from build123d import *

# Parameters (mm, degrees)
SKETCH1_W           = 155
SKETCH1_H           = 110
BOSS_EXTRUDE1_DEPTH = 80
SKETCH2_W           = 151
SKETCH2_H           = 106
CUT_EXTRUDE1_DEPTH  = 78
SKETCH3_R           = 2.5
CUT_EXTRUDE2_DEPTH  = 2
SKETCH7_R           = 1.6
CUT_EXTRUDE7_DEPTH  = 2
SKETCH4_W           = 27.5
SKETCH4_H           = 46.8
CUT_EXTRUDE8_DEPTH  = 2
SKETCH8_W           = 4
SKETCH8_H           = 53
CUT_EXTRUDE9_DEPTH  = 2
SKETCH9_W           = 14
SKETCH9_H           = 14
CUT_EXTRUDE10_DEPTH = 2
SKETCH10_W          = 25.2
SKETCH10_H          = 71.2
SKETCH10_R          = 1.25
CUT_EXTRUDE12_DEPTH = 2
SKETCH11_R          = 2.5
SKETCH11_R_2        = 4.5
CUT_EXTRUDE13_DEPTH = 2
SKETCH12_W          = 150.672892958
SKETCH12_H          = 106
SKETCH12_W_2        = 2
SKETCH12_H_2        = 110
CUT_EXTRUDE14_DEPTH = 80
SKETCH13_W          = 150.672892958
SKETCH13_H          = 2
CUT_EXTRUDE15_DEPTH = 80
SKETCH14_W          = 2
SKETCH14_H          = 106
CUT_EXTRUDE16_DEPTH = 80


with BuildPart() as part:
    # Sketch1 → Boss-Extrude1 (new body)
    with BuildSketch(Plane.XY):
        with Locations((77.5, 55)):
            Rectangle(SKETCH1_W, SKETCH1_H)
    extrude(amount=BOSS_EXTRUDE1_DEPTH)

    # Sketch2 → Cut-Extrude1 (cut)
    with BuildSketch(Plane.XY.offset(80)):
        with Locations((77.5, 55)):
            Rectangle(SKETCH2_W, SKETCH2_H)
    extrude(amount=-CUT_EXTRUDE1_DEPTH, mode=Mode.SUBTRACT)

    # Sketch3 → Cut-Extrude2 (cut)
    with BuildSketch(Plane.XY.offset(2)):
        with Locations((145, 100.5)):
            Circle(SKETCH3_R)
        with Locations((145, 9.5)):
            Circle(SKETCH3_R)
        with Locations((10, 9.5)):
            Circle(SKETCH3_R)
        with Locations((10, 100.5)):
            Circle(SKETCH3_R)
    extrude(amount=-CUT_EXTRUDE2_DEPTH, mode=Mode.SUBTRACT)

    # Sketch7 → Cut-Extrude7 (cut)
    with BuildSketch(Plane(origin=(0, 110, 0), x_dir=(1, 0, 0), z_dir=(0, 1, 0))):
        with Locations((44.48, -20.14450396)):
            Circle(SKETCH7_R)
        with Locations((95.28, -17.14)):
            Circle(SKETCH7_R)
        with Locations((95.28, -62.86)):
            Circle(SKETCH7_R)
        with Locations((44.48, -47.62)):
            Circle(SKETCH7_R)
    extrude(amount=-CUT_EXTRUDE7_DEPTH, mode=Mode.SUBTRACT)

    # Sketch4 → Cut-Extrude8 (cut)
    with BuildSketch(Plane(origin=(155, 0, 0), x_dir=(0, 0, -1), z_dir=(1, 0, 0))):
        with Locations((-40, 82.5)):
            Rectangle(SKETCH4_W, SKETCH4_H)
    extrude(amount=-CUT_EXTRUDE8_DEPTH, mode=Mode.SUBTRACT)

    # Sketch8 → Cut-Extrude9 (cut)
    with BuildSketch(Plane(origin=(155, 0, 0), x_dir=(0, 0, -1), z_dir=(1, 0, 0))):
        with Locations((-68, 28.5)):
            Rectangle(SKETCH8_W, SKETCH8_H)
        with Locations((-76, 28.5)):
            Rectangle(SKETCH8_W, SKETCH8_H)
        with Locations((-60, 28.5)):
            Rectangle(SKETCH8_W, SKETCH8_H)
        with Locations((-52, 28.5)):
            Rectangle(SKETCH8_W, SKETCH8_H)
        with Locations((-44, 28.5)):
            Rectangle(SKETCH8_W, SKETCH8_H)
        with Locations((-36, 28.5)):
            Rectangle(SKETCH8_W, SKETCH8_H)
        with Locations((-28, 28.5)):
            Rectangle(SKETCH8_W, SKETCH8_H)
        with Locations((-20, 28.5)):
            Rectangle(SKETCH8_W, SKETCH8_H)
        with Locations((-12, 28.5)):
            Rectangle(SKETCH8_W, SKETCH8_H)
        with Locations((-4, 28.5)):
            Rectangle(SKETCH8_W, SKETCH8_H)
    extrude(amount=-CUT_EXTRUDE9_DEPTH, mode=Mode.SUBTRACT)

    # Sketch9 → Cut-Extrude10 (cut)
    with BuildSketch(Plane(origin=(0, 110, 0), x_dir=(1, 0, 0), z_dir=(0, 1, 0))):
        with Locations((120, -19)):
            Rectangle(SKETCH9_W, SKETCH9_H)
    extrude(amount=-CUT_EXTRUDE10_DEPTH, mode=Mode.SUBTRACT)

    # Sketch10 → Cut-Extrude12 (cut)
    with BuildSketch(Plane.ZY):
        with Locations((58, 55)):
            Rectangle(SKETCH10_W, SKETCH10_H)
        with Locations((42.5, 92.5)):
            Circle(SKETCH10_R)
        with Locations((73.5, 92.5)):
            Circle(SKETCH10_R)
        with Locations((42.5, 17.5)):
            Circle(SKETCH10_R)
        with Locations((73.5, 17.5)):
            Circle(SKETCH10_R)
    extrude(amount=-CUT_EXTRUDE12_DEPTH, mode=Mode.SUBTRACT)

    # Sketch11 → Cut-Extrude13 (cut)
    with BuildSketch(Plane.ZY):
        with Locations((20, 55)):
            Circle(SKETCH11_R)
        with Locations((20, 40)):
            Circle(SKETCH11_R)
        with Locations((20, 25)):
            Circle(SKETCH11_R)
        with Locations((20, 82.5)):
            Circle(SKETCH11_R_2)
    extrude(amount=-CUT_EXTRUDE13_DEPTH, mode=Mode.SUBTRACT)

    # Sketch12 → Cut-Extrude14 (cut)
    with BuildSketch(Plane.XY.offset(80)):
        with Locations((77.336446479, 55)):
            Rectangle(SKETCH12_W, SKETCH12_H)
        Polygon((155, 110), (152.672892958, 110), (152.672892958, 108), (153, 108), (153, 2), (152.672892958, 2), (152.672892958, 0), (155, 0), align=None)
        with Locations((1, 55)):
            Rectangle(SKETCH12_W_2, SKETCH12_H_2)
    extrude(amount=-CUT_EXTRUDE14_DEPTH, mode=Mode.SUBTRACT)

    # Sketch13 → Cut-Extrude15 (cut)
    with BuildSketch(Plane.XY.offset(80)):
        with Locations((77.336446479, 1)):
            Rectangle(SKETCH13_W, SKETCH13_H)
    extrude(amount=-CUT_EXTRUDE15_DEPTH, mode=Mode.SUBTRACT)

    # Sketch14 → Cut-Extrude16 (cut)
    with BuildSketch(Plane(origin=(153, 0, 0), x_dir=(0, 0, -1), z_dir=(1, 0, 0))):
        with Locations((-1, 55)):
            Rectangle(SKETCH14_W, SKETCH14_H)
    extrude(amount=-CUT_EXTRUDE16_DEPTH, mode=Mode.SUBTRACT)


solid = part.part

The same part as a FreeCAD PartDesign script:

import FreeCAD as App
import Part
import Sketcher
from FreeCAD import Vector


def add_polygon(sketch, points):
    """Adds a closed chain of lines whose ends are joined by coincident constraints."""
    first, n = sketch.GeometryCount, len(points)
    for a, b in zip(points, points[1:] + points[:1]):
        sketch.addGeometry(Part.LineSegment(App.Vector(*a, 0), App.Vector(*b, 0)), False)
    for i in range(n):
        sketch.addConstraint(Sketcher.Constraint("Coincident", first + i, 2, first + (i + 1) % n, 1))

doc = App.newDocument("Part")
body = doc.addObject("PartDesign::Body", "Body")
body.AllowCompound = True

# Sketch on XY plane
sketch1 = body.newObject("Sketcher::SketchObject", "Sketch")
sketch1.AttachmentSupport = (doc.getObject("XY_Plane"), [""])
sketch1.MapMode = "FlatFace"
add_polygon(sketch1, [(0, 110), (0, 0), (155, 0), (155, 110)])  # lines 0-3
sketch1.addConstraint([
    Sketcher.Constraint("Vertical", 0),
    Sketcher.Constraint("Horizontal", 1),
    Sketcher.Constraint("Vertical", 2),
    Sketcher.Constraint("Horizontal", 3),
    Sketcher.Constraint("Coincident", 0, 2, -1, 1),
    Sketcher.Constraint("DistanceX", 1, 1, 1, 2, 155.0),
    Sketcher.Constraint("DistanceY", 0, 2, 0, 1, 110.0),
])
pad1 = body.newObject("PartDesign::Pad", "Pad")
pad1.Profile = sketch1
pad1.Length = 80

# Sketch on XY plane
sketch2 = body.newObject("Sketcher::SketchObject", "Sketch001")
sketch2.AttachmentSupport = (doc.getObject("XY_Plane"), [""])
sketch2.MapMode = "FlatFace"
sketch2.AttachmentOffset = App.Placement(Vector(0, 0, 80), App.Rotation())
add_polygon(sketch2, [(2, 108), (2, 2), (153, 2), (153, 108)])  # lines 0-3
sketch2.addConstraint([
    Sketcher.Constraint("Vertical", 0),
    Sketcher.Constraint("Horizontal", 1),
    Sketcher.Constraint("Vertical", 2),
    Sketcher.Constraint("Horizontal", 3),
    Sketcher.Constraint("DistanceX", 1, 1, 1, 2, 151.0),
    Sketcher.Constraint("DistanceY", 0, 2, 0, 1, 106.0),
    Sketcher.Constraint("DistanceX", -1, 1, 0, 2, 2.0),
    Sketcher.Constraint("DistanceY", -1, 1, 0, 2, 2.0),
])
pocket1 = body.newObject("PartDesign::Pocket", "Pocket")
pocket1.Profile = sketch2
pocket1.Length = 78

# Sketch on XY plane
sketch3 = body.newObject("Sketcher::SketchObject", "Sketch002")
sketch3.AttachmentSupport = (doc.getObject("XY_Plane"), [""])
sketch3.MapMode = "FlatFace"
sketch3.AttachmentOffset = App.Placement(Vector(0, 0, 2), App.Rotation())
sketch3.addGeometry([
    Part.Circle(Vector(145, 100.5, 0), Vector(0, 0, 1), 2.5),
    Part.Circle(Vector(145, 9.5, 0), Vector(0, 0, 1), 2.5),
    Part.Circle(Vector(10, 9.5, 0), Vector(0, 0, 1), 2.5),
    Part.Circle(Vector(10, 100.5, 0), Vector(0, 0, 1), 2.5),
], False)
sketch3.addConstraint([
    Sketcher.Constraint("Equal", 0, 1),
    Sketcher.Constraint("Equal", 1, 2),
    Sketcher.Constraint("Equal", 2, 3),
    Sketcher.Constraint("Horizontal", 1, 3, 2, 3),
    Sketcher.Constraint("Horizontal", 0, 3, 3, 3),
    Sketcher.Constraint("Vertical", 0, 3, 1, 3),
    Sketcher.Constraint("Vertical", 2, 3, 3, 3),
    Sketcher.Constraint("Diameter", 0, 5.0),
    Sketcher.Constraint("DistanceX", -1, 1, 0, 3, 145.0),
    Sketcher.Constraint("DistanceX", -1, 1, 2, 3, 10.0),
    Sketcher.Constraint("DistanceY", 1, 3, 0, 3, 91.0),
    Sketcher.Constraint("DistanceY", -1, 1, 0, 3, 100.5),
])
pocket2 = body.newObject("PartDesign::Pocket", "Pocket001")
pocket2.Profile = sketch3
pocket2.Length = 2

# Sketch on XZ plane
sketch4 = body.newObject("Sketcher::SketchObject", "Sketch003")
sketch4.AttachmentSupport = (doc.getObject("XZ_Plane"), [""])
sketch4.MapMode = "FlatFace"
sketch4.AttachmentOffset = App.Placement(Vector(0, 0, -110), App.Rotation())
sketch4.addGeometry([
    Part.Circle(Vector(44.48, 20.144504, 0), Vector(0, 0, 1), 1.6),
    Part.Circle(Vector(95.28, 17.14, 0), Vector(0, 0, 1), 1.6),
    Part.Circle(Vector(95.28, 62.86, 0), Vector(0, 0, 1), 1.6),
    Part.Circle(Vector(44.48, 47.62, 0), Vector(0, 0, 1), 1.6),
], False)
sketch4.addConstraint([
    Sketcher.Constraint("Equal", 0, 1),
    Sketcher.Constraint("Equal", 1, 2),
    Sketcher.Constraint("Equal", 2, 3),
    Sketcher.Constraint("Vertical", 1, 3, 2, 3),
    Sketcher.Constraint("Vertical", 0, 3, 3, 3),
    Sketcher.Constraint("Diameter", 0, 3.2),
    Sketcher.Constraint("DistanceX", 0, 3, 1, 3, 50.8),
    Sketcher.Constraint("DistanceX", -1, 1, 0, 3, 44.48),
    Sketcher.Constraint("DistanceY", -1, 1, 1, 3, 17.14),
    Sketcher.Constraint("DistanceY", -1, 1, 2, 3, 62.86),
    Sketcher.Constraint("DistanceY", -1, 1, 3, 3, 47.62),
    Sketcher.Constraint("DistanceY", -1, 1, 0, 3, 20.144504),
])
pocket3 = body.newObject("PartDesign::Pocket", "Pocket002")
pocket3.Profile = sketch4
pocket3.Length = 2
pocket3.Reversed = True

# Sketch on YZ plane
sketch5 = body.newObject("Sketcher::SketchObject", "Sketch004")
sketch5.AttachmentSupport = (doc.getObject("YZ_Plane"), [""])
sketch5.MapMode = "FlatFace"
sketch5.AttachmentOffset = App.Placement(Vector(0, 0, 155), App.Rotation())
add_polygon(sketch5, [(105.9, 53.75), (59.1, 53.75), (59.1, 26.25), (105.9, 26.25)])  # lines 0-3
sketch5.addConstraint([
    Sketcher.Constraint("Horizontal", 0),
    Sketcher.Constraint("Vertical", 1),
    Sketcher.Constraint("Horizontal", 2),
    Sketcher.Constraint("Vertical", 3),
    Sketcher.Constraint("DistanceX", 0, 2, 0, 1, 46.8),
    Sketcher.Constraint("DistanceY", 1, 2, 1, 1, 27.5),
    Sketcher.Constraint("DistanceX", -1, 1, 0, 2, 59.1),
    Sketcher.Constraint("DistanceY", -1, 1, 0, 2, 53.75),
])
pocket4 = body.newObject("PartDesign::Pocket", "Pocket003")
pocket4.Profile = sketch5
pocket4.Length = 2

# Sketch on YZ plane
sketch6 = body.newObject("Sketcher::SketchObject", "Sketch005")
sketch6.AttachmentSupport = (doc.getObject("YZ_Plane"), [""])
sketch6.MapMode = "FlatFace"
sketch6.AttachmentOffset = App.Placement(Vector(0, 0, 155), App.Rotation())
add_polygon(sketch6, [(55, 70), (2, 70), (2, 66), (55, 66)])  # lines 0-3
add_polygon(sketch6, [(55, 78), (2, 78), (2, 74), (55, 74)])  # lines 4-7
add_polygon(sketch6, [(55, 62), (2, 62), (2, 58), (55, 58)])  # lines 8-11
add_polygon(sketch6, [(55, 54), (2, 54), (2, 50), (55, 50)])  # lines 12-15
add_polygon(sketch6, [(55, 46), (2, 46), (2, 42), (55, 42)])  # lines 16-19
add_polygon(sketch6, [(55, 38), (2, 38), (2, 34), (55, 34)])  # lines 20-23
add_polygon(sketch6, [(55, 30), (2, 30), (2, 26), (55, 26)])  # lines 24-27
add_polygon(sketch6, [(55, 22), (2, 22), (2, 18), (55, 18)])  # lines 28-31
add_polygon(sketch6, [(55, 14), (2, 14), (2, 10), (55, 10)])  # lines 32-35
add_polygon(sketch6, [(55, 6), (2, 6), (2, 2), (55, 2)])  # lines 36-39
sketch6.addConstraint([
    Sketcher.Constraint("Horizontal", 0),
    Sketcher.Constraint("Vertical", 1),
    Sketcher.Constraint("Horizontal", 2),
    Sketcher.Constraint("Vertical", 3),
    Sketcher.Constraint("Horizontal", 4),
    Sketcher.Constraint("Vertical", 5),
    Sketcher.Constraint("Horizontal", 6),
    Sketcher.Constraint("Vertical", 7),
    Sketcher.Constraint("Horizontal", 8),
    Sketcher.Constraint("Vertical", 9),
    Sketcher.Constraint("Horizontal", 10),
    Sketcher.Constraint("Vertical", 11),
    Sketcher.Constraint("Horizontal", 12),
    Sketcher.Constraint("Vertical", 13),
    Sketcher.Constraint("Horizontal", 14),
    Sketcher.Constraint("Vertical", 15),
    Sketcher.Constraint("Horizontal", 16),
    Sketcher.Constraint("Vertical", 17),
    Sketcher.Constraint("Horizontal", 18),
    Sketcher.Constraint("Vertical", 19),
    Sketcher.Constraint("Horizontal", 20),
    Sketcher.Constraint("Vertical", 21),
    Sketcher.Constraint("Horizontal", 22),
    Sketcher.Constraint("Vertical", 23),
    Sketcher.Constraint("Horizontal", 24),
    Sketcher.Constraint("Vertical", 25),
    Sketcher.Constraint("Horizontal", 26),
    Sketcher.Constraint("Vertical", 27),
    Sketcher.Constraint("Horizontal", 28),
    Sketcher.Constraint("Vertical", 29),
    Sketcher.Constraint("Horizontal", 30),
    Sketcher.Constraint("Vertical", 31),
    Sketcher.Constraint("Horizontal", 32),
    Sketcher.Constraint("Vertical", 33),
    Sketcher.Constraint("Horizontal", 34),
    Sketcher.Constraint("Vertical", 35),
    Sketcher.Constraint("Horizontal", 36),
    Sketcher.Constraint("Vertical", 37),
    Sketcher.Constraint("Horizontal", 38),
    Sketcher.Constraint("Vertical", 39),
    Sketcher.Constraint("Vertical", 1, 2, 4, 2),
    Sketcher.Constraint("Vertical", 3, 2, 6, 2),
    Sketcher.Constraint("Vertical", 5, 2, 8, 2),
    Sketcher.Constraint("Vertical", 7, 2, 10, 2),
    Sketcher.Constraint("Vertical", 9, 2, 12, 2),
    Sketcher.Constraint("Vertical", 11, 2, 14, 2),
    Sketcher.Constraint("Vertical", 13, 2, 16, 2),
    Sketcher.Constraint("Vertical", 15, 2, 18, 2),
    Sketcher.Constraint("Vertical", 17, 2, 20, 2),
    Sketcher.Constraint("Vertical", 19, 2, 22, 2),
    Sketcher.Constraint("Vertical", 21, 2, 24, 2),
    Sketcher.Constraint("Vertical", 23, 2, 26, 2),
    Sketcher.Constraint("Vertical", 25, 2, 28, 2),
    Sketcher.Constraint("Vertical", 27, 2, 30, 2),
    Sketcher.Constraint("Vertical", 29, 2, 32, 2),
    Sketcher.Constraint("Vertical", 31, 2, 34, 2),
    Sketcher.Constraint("Vertical", 33, 2, 36, 2),
    Sketcher.Constraint("Vertical", 35, 2, 38, 2),
    Sketcher.Constraint("Equal", 3, 5),
    Sketcher.Constraint("Equal", 7, 9),
    Sketcher.Constraint("Equal", 11, 13),
    Sketcher.Constraint("Equal", 15, 17),
    Sketcher.Constraint("Equal", 19, 21),
    Sketcher.Constraint("Equal", 23, 25),
    Sketcher.Constraint("Equal", 27, 29),
    Sketcher.Constraint("Equal", 31, 33),
    Sketcher.Constraint("Equal", 35, 37),
    Sketcher.Constraint("DistanceX", 0, 2, 0, 1, 53.0),
    Sketcher.Constraint("DistanceY", 1, 2, 1, 1, 4.0),
    Sketcher.Constraint("DistanceX", -1, 1, 0, 2, 2.0),
    Sketcher.Constraint("DistanceY", -1, 1, 0, 2, 70.0),
    Sketcher.Constraint("DistanceY", -1, 1, 4, 2, 78.0),
    Sketcher.Constraint("DistanceY", -1, 1, 8, 2, 62.0),
    Sketcher.Constraint("DistanceY", -1, 1, 12, 2, 54.0),
    Sketcher.Constraint("DistanceY", -1, 1, 16, 2, 46.0),
    Sketcher.Constraint("DistanceY", -1, 1, 20, 2, 38.0),
    Sketcher.Constraint("DistanceY", -1, 1, 24, 2, 30.0),
    Sketcher.Constraint("DistanceY", -1, 1, 28, 2, 22.0),
    Sketcher.Constraint("DistanceY", -1, 1, 32, 2, 14.0),
    Sketcher.Constraint("DistanceY", -1, 1, 36, 2, 6.0),
])
pocket5 = body.newObject("PartDesign::Pocket", "Pocket004")
pocket5.Profile = sketch6
pocket5.Length = 2

# Sketch on XZ plane
sketch7 = body.newObject("Sketcher::SketchObject", "Sketch006")
sketch7.AttachmentSupport = (doc.getObject("XZ_Plane"), [""])
sketch7.MapMode = "FlatFace"
sketch7.AttachmentOffset = App.Placement(Vector(0, 0, -110), App.Rotation())
add_polygon(sketch7, [(113, 12), (113, 26), (127, 26), (127, 12)])  # lines 0-3
sketch7.addConstraint([
    Sketcher.Constraint("Vertical", 0),
    Sketcher.Constraint("Horizontal", 1),
    Sketcher.Constraint("Vertical", 2),
    Sketcher.Constraint("Horizontal", 3),
    Sketcher.Constraint("Equal", 3, 0),
    Sketcher.Constraint("DistanceX", 1, 1, 1, 2, 14.0),
    Sketcher.Constraint("DistanceX", -1, 1, 0, 2, 113.0),
    Sketcher.Constraint("DistanceY", -1, 1, 0, 2, 26.0),
])
pocket6 = body.newObject("PartDesign::Pocket", "Pocket005")
pocket6.Profile = sketch7
pocket6.Length = 2
pocket6.Reversed = True

# Sketch on YZ plane
sketch8 = body.newObject("Sketcher::SketchObject", "Sketch007")
sketch8.AttachmentSupport = (doc.getObject("YZ_Plane"), [""])
sketch8.MapMode = "FlatFace"
add_polygon(sketch8, [(90.6, 45.4), (19.4, 45.4), (19.4, 70.6), (90.6, 70.6)])  # lines 0-3
sketch8.addGeometry(Part.Circle(Vector(92.5, 42.5, 0), Vector(0, 0, 1), 1.25), False)  # 4
sketch8.addGeometry(Part.Circle(Vector(92.5, 73.5, 0), Vector(0, 0, 1), 1.25), False)  # 5
sketch8.addGeometry(Part.Circle(Vector(17.5, 42.5, 0), Vector(0, 0, 1), 1.25), False)  # 6
sketch8.addGeometry(Part.Circle(Vector(17.5, 73.5, 0), Vector(0, 0, 1), 1.25), False)  # 7
sketch8.addConstraint([
    Sketcher.Constraint("Horizontal", 0),
    Sketcher.Constraint("Vertical", 1),
    Sketcher.Constraint("Horizontal", 2),
    Sketcher.Constraint("Vertical", 3),
    Sketcher.Constraint("Equal", 4, 5),
    Sketcher.Constraint("Equal", 5, 6),
    Sketcher.Constraint("Equal", 6, 7),
    Sketcher.Constraint("Horizontal", 4, 3, 6, 3),
    Sketcher.Constraint("Horizontal", 5, 3, 7, 3),
    Sketcher.Constraint("Vertical", 4, 3, 5, 3),
    Sketcher.Constraint("Vertical", 6, 3, 7, 3),
    Sketcher.Constraint("Diameter", 4, 2.5),
    Sketcher.Constraint("DistanceX", 0, 2, 0, 1, 71.2),
    Sketcher.Constraint("DistanceY", 1, 1, 1, 2, 25.2),
    Sketcher.Constraint("DistanceY", 4, 3, 5, 3, 31.0),
    Sketcher.Constraint("DistanceX", 6, 3, 4, 3, 75.0),
    Sketcher.Constraint("DistanceX", -1, 1, 4, 3, 92.5),
    Sketcher.Constraint("DistanceY", -1, 1, 4, 3, 42.5),
    Sketcher.Constraint("DistanceX", -1, 1, 0, 2, 19.4),
    Sketcher.Constraint("DistanceY", -1, 1, 0, 2, 45.4),
])
pocket7 = body.newObject("PartDesign::Pocket", "Pocket006")
pocket7.Profile = sketch8
pocket7.Length = 2
pocket7.Reversed = True

# Sketch on YZ plane
sketch9 = body.newObject("Sketcher::SketchObject", "Sketch008")
sketch9.AttachmentSupport = (doc.getObject("YZ_Plane"), [""])
sketch9.MapMode = "FlatFace"
sketch9.addGeometry([
    Part.Circle(Vector(55, 20, 0), Vector(0, 0, 1), 2.5),
    Part.Circle(Vector(40, 20, 0), Vector(0, 0, 1), 2.5),
    Part.Circle(Vector(25, 20, 0), Vector(0, 0, 1), 2.5),
    Part.Circle(Vector(82.5, 20, 0), Vector(0, 0, 1), 4.5),
], False)
sketch9.addConstraint([
    Sketcher.Constraint("Equal", 0, 1),
    Sketcher.Constraint("Equal", 1, 2),
    Sketcher.Constraint("Horizontal", 0, 3, 1, 3),
    Sketcher.Constraint("Horizontal", 1, 3, 2, 3),
    Sketcher.Constraint("Horizontal", 2, 3, 3, 3),
    Sketcher.Constraint("Diameter", 0, 5.0),
    Sketcher.Constraint("Diameter", 3, 9.0),
    Sketcher.Constraint("DistanceX", -1, 1, 0, 3, 55.0),
    Sketcher.Constraint("DistanceY", -1, 1, 0, 3, 20.0),
    Sketcher.Constraint("DistanceX", -1, 1, 1, 3, 40.0),
    Sketcher.Constraint("DistanceX", -1, 1, 2, 3, 25.0),
    Sketcher.Constraint("DistanceX", -1, 1, 3, 3, 82.5),
])
pocket8 = body.newObject("PartDesign::Pocket", "Pocket007")
pocket8.Profile = sketch9
pocket8.Length = 2
pocket8.Reversed = True

# Sketch on XY plane
sketch10 = body.newObject("Sketcher::SketchObject", "Sketch009")
sketch10.AttachmentSupport = (doc.getObject("XY_Plane"), [""])
sketch10.MapMode = "FlatFace"
sketch10.AttachmentOffset = App.Placement(Vector(0, 0, 80), App.Rotation())
add_polygon(sketch10, [(2, 2), (152.672893, 2), (152.672893, 108), (2, 108), (2, 110), (0, 110), (0, 0), (2, 0)])  # lines 0-7
add_polygon(sketch10, [(155, 110), (152.672893, 110), (152.672893, 108), (153, 108), (153, 2), (152.672893, 2), (152.672893, 0), (155, 0)])  # lines 8-15
sketch10.addConstraint([
    Sketcher.Constraint("Horizontal", 0),
    Sketcher.Constraint("Vertical", 1),
    Sketcher.Constraint("Horizontal", 2),
    Sketcher.Constraint("Vertical", 3),
    Sketcher.Constraint("Horizontal", 4),
    Sketcher.Constraint("Vertical", 5),
    Sketcher.Constraint("Horizontal", 6),
    Sketcher.Constraint("Vertical", 7),
    Sketcher.Constraint("Horizontal", 8),
    Sketcher.Constraint("Vertical", 9),
    Sketcher.Constraint("Horizontal", 10),
    Sketcher.Constraint("Vertical", 11),
    Sketcher.Constraint("Horizontal", 12),
    Sketcher.Constraint("Vertical", 13),
    Sketcher.Constraint("Horizontal", 14),
    Sketcher.Constraint("Vertical", 15),
    Sketcher.Constraint("Coincident", 5, 2, -1, 1),
    Sketcher.Constraint("Coincident", 9, 2, 1, 2),
    Sketcher.Constraint("Coincident", 12, 2, 0, 2),
    Sketcher.Constraint("PointOnObject", 13, 2, -1),
    Sketcher.Constraint("Horizontal", 4, 2, 8, 2),
    Sketcher.Constraint("Vertical", 3, 2, 6, 2),
    Sketcher.Constraint("Equal", 6, 3),
    Sketcher.Constraint("Equal", 3, 7),
    Sketcher.Constraint("DistanceX", 4, 2, 4, 1, 2.0),
    Sketcher.Constraint("DistanceY", 1, 1, 1, 2, 106.0),
    Sketcher.Constraint("DistanceX", -1, 1, 10, 2, 153.0),
    Sketcher.Constraint("DistanceX", -1, 1, 14, 2, 155.0),
    Sketcher.Constraint("DistanceX", 0, 1, 0, 2, 150.672893),
])
pocket9 = body.newObject("PartDesign::Pocket", "Pocket008")
pocket9.Profile = sketch10
pocket9.Length = 80

# Sketch on XY plane
sketch11 = body.newObject("Sketcher::SketchObject", "Sketch010")
sketch11.AttachmentSupport = (doc.getObject("XY_Plane"), [""])
sketch11.MapMode = "FlatFace"
sketch11.AttachmentOffset = App.Placement(Vector(0, 0, 80), App.Rotation())
add_polygon(sketch11, [(2, 2), (2, 0), (152.672893, 0), (152.672893, 2)])  # lines 0-3
sketch11.addConstraint([
    Sketcher.Constraint("Vertical", 0),
    Sketcher.Constraint("Horizontal", 1),
    Sketcher.Constraint("Vertical", 2),
    Sketcher.Constraint("Horizontal", 3),
    Sketcher.Constraint("PointOnObject", 0, 2, -1),
    Sketcher.Constraint("DistanceY", 0, 2, 0, 1, 2.0),
    Sketcher.Constraint("DistanceX", -1, 1, 0, 2, 2.0),
    Sketcher.Constraint("DistanceX", 1, 1, 1, 2, 150.672893),
])
pocket10 = body.newObject("PartDesign::Pocket", "Pocket009")
pocket10.Profile = sketch11
pocket10.Length = 80

# Sketch on YZ plane
sketch12 = body.newObject("Sketcher::SketchObject", "Sketch011")
sketch12.AttachmentSupport = (doc.getObject("YZ_Plane"), [""])
sketch12.MapMode = "FlatFace"
sketch12.AttachmentOffset = App.Placement(Vector(0, 0, 153), App.Rotation())
add_polygon(sketch12, [(108, 2), (2, 2), (2, 0), (108, 0)])  # lines 0-3
sketch12.addConstraint([
    Sketcher.Constraint("Horizontal", 0),
    Sketcher.Constraint("Vertical", 1),
    Sketcher.Constraint("Horizontal", 2),
    Sketcher.Constraint("Vertical", 3),
    Sketcher.Constraint("PointOnObject", 1, 2, -1),
    Sketcher.Constraint("DistanceX", 0, 2, 0, 1, 106.0),
    Sketcher.Constraint("DistanceY", 1, 2, 1, 1, 2.0),
    Sketcher.Constraint("DistanceX", -1, 1, 0, 2, 2.0),
])
pocket11 = body.newObject("PartDesign::Pocket", "Pocket010")
pocket11.Profile = sketch12
pocket11.Length = 80

doc.recompute()
